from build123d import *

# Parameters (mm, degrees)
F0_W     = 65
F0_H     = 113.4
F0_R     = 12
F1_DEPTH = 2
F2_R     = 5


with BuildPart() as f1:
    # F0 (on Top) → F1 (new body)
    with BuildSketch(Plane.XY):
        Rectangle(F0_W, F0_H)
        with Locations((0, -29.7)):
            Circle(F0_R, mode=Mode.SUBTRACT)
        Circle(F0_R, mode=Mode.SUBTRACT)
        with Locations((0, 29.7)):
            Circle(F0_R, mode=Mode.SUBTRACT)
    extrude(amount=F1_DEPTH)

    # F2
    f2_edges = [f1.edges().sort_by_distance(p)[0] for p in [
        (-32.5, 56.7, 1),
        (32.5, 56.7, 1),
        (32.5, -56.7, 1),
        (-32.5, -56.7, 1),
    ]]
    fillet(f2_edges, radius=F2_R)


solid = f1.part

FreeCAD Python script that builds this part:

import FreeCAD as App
import Part
import Sketcher
from FreeCAD import Vector
Q = App.Units.Quantity


def edges_at(feature, points):
    """Names of the edges that pass closest to the given points."""
    edges = feature.Shape.Edges
    near = lambda p: min(range(len(edges)), key=lambda i: edges[i].distToShape(Part.Vertex(*p))[0])
    return sorted({f"Edge{near(p) + 1}" for p in points})


def add_polygon(sketch, points):
    """Adds a closed chain of lines whose ends are joined by coincident constraints."""
    first, n = sketch.GeometryCount, len(points)
    for a, b in zip(points, points[1:] + points[:1]):
        sketch.addGeometry(Part.LineSegment(App.Vector(*a, 0), App.Vector(*b, 0)), False)
    for i in range(n):
        sketch.addConstraint(Sketcher.Constraint("Coincident", first + i, 2, first + (i + 1) % n, 1))

doc = App.newDocument("Part")
body = doc.addObject("PartDesign::Body", "Body")

sketch1 = body.newObject("Sketcher::SketchObject", "Sketch")
sketch1.AttachmentSupport = (doc.getObject("XY_Plane"), [""])
sketch1.MapMode = "FlatFace"
add_polygon(sketch1, [(-32, 57), (-32, -57), (32, -57), (32, 57)])
sketch1.addGeometry(Part.Circle(Vector(0, -30, 0), Vector(0, 0, 1), 12), False)
sketch1.addGeometry(Part.Circle(Vector(0, 0, 0), Vector(0, 0, 1), 12), False)
sketch1.addGeometry(Part.Circle(Vector(0, 30, 0), Vector(0, 0, 1), 12), False)
sketch1.addConstraint(Sketcher.Constraint("Vertical", 0))
sketch1.addConstraint(Sketcher.Constraint("Horizontal", 1))
sketch1.addConstraint(Sketcher.Constraint("Vertical", 2))
sketch1.addConstraint(Sketcher.Constraint("Horizontal", 3))
sketch1.addConstraint(Sketcher.Constraint("Coincident", 5, 3, -1, 1))
sketch1.addConstraint(Sketcher.Constraint("Equal", 4, 5))
sketch1.addConstraint(Sketcher.Constraint("Equal", 5, 6))
sketch1.addConstraint(Sketcher.Constraint("Symmetric", 4, 3, 6, 3, -1, 1))
sketch1.addConstraint(Sketcher.Constraint("Symmetric", 0, 2, 2, 2, -1, 1))
sketch1.addConstraint(Sketcher.Constraint("PointOnObject", 4, 3, -2))
sketch1.addConstraint(Sketcher.Constraint("Diameter", 4, Q("24 mm")))
sketch1.addConstraint(Sketcher.Constraint("DistanceX", 1, 1, 1, 2, Q("65 mm")))
sketch1.addConstraint(Sketcher.Constraint("DistanceY", 0, 2, 0, 1, Q("113.4 mm")))
sketch1.addConstraint(Sketcher.Constraint("DistanceY", 0, 2, 4, 3, Q("27 mm")))
pad1 = body.newObject("PartDesign::Pad", "Pad")
pad1.Profile = sketch1
pad1.Length = 2
doc.recompute()

fillet = body.newObject("PartDesign::Fillet", "Fillet")
fillet.Base = (pad1, edges_at(pad1, [
    (-32.5, 56.7, 1),
    (32.5, 56.7, 1),
    (32.5, -56.7, 1),
    (-32.5, -56.7, 1),
]))
fillet.Radius = 5

doc.recompute()
